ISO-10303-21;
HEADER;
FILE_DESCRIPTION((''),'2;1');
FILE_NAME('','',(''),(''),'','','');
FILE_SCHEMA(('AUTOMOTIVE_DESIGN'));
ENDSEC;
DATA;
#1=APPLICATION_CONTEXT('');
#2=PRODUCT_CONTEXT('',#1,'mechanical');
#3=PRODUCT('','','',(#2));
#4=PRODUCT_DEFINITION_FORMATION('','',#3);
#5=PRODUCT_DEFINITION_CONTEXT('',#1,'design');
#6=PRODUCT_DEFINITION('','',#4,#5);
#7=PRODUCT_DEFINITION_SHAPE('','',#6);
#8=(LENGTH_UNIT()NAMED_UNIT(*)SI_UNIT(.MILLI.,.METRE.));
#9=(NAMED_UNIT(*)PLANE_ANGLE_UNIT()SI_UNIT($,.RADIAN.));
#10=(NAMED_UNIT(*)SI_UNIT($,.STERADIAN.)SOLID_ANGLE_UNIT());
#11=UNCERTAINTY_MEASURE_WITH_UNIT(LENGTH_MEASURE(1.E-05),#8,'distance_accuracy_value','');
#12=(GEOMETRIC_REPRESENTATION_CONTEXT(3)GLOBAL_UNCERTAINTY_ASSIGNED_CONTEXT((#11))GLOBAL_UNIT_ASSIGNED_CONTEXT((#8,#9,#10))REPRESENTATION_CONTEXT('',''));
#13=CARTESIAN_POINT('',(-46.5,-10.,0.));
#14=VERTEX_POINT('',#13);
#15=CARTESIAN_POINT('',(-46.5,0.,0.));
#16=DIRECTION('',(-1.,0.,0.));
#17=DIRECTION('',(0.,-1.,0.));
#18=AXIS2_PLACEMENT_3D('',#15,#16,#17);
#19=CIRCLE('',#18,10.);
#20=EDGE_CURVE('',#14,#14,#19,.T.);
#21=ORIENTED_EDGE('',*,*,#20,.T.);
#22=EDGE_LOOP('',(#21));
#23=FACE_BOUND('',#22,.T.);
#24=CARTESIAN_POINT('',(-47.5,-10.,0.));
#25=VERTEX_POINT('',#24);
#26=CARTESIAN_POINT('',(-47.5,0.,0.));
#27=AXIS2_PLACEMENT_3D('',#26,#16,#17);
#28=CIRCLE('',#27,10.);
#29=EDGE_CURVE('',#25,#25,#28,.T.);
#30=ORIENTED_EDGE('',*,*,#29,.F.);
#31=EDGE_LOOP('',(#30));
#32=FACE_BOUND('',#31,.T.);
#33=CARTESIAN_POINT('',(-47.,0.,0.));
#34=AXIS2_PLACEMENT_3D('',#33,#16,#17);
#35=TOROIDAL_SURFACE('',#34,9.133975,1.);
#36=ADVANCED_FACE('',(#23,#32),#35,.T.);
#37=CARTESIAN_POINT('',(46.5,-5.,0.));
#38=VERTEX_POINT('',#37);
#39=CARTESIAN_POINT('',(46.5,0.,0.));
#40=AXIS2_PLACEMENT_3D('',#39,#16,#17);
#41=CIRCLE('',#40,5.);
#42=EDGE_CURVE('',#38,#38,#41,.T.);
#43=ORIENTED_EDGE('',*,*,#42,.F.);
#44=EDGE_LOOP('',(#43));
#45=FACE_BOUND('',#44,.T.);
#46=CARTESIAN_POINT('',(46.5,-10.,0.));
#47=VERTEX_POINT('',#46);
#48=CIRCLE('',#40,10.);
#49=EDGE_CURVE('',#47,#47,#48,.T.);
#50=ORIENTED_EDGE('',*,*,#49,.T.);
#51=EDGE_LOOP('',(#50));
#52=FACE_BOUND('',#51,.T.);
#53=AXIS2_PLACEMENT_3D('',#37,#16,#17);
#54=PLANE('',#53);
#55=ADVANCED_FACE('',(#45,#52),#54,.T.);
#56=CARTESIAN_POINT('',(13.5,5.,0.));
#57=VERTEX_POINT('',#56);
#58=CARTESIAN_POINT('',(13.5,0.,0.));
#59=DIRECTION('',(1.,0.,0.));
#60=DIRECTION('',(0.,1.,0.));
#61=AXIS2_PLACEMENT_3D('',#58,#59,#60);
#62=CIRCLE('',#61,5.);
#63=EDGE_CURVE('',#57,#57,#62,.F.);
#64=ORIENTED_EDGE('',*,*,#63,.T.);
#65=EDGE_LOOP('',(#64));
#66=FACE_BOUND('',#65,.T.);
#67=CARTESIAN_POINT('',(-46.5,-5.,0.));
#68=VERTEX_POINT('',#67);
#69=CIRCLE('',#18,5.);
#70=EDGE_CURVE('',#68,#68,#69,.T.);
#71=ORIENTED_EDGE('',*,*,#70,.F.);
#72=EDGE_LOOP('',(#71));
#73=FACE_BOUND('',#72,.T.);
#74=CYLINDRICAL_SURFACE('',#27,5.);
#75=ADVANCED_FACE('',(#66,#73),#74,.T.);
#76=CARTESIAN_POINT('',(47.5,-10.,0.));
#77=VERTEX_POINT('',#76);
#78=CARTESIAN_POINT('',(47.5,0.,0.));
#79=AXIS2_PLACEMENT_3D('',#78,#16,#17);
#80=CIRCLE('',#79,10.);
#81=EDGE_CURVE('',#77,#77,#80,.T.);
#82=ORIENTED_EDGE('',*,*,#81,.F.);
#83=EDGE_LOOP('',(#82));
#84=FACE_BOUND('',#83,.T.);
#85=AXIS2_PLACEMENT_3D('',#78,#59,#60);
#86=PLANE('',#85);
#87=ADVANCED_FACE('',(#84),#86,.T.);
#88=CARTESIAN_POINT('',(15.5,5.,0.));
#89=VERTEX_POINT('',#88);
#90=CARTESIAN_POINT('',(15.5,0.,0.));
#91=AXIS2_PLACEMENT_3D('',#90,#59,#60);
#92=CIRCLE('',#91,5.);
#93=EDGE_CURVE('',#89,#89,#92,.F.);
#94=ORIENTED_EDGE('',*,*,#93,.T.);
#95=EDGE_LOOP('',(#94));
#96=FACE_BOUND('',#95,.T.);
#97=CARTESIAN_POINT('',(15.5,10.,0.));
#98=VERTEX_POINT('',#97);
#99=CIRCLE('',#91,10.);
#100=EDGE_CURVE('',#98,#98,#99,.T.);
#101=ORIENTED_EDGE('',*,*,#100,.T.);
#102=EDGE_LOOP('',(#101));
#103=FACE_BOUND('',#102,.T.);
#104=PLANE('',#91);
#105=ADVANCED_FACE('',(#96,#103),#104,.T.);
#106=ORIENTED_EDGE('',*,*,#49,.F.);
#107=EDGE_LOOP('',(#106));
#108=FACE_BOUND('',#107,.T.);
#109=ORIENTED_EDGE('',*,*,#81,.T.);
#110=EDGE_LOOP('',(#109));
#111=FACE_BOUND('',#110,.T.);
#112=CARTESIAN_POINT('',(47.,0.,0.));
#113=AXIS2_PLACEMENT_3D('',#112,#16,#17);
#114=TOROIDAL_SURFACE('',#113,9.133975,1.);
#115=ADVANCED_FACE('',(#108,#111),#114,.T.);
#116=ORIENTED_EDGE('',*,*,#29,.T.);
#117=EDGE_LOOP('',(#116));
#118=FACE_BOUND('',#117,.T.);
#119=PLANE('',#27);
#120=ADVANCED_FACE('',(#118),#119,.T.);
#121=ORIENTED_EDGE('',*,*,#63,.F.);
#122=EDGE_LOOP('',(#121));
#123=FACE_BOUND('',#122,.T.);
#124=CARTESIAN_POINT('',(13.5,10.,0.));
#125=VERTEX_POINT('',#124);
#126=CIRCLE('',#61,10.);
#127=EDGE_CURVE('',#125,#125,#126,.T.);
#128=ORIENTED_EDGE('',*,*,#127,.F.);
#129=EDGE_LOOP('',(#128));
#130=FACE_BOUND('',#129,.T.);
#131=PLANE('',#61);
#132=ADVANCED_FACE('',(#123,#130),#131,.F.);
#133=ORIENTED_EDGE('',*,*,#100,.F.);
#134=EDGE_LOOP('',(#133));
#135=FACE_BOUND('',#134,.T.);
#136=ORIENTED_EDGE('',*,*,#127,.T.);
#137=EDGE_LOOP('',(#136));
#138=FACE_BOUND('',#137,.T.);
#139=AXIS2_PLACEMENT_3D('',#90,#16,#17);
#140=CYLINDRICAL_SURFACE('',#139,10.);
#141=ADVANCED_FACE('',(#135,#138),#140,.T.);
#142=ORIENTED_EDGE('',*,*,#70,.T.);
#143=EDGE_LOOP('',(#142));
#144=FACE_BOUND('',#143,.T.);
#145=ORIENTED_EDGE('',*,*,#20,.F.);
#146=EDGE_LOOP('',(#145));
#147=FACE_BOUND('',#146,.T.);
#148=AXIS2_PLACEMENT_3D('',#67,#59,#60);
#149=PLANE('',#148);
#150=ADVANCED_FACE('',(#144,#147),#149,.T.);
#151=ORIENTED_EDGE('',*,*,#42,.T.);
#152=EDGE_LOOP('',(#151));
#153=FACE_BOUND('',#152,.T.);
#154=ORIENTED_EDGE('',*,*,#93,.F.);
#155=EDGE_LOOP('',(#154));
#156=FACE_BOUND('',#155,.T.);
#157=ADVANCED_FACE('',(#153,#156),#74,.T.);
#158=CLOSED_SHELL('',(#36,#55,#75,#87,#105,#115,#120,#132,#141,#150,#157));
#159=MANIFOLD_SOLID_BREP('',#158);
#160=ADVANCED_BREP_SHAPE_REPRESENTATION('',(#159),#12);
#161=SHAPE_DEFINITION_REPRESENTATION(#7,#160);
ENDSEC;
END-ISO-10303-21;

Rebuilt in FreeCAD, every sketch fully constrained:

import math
import FreeCAD as App
import Part
import Sketcher
from FreeCAD import Vector

doc = App.newDocument("Part")
body = doc.addObject("PartDesign::Body", "Body")

sketch1 = body.newObject("Sketcher::SketchObject", "Sketch")
sketch1.AttachmentSupport = (doc.getObject("XY_Plane"), [""])
sketch1.MapMode = "FlatFace"
sketch1.addGeometry(Part.LineSegment(Vector(47.5, 0, 0), Vector(-47.5, 0, 0)), False)
sketch1.addGeometry(Part.LineSegment(Vector(-47.5, 0, 0), Vector(-47.5, -10, 0)), False)
sketch1.addGeometry(Part.ArcOfCircle(Part.Circle(Vector(-47, -9.133975, 0), Vector(0, 0, 1), 1), math.radians(-120), math.radians(-60)), False)
sketch1.addGeometry(Part.LineSegment(Vector(-46.5, -10, 0), Vector(-46.5, -5, 0)), False)
sketch1.addGeometry(Part.LineSegment(Vector(-46.5, -5, 0), Vector(46.5, -5, 0)), False)
sketch1.addGeometry(Part.LineSegment(Vector(46.5, -5, 0), Vector(46.5, -10, 0)), False)
sketch1.addGeometry(Part.ArcOfCircle(Part.Circle(Vector(47, -9.133975, 0), Vector(0, 0, 1), 1), math.radians(-120), math.radians(-60)), False)
sketch1.addGeometry(Part.LineSegment(Vector(47.5, -10, 0), Vector(47.5, 0, 0)), False)
sketch1.addConstraint(Sketcher.Constraint("Coincident", 0, 2, 1, 1))
sketch1.addConstraint(Sketcher.Constraint("Coincident", 1, 2, 2, 1))
sketch1.addConstraint(Sketcher.Constraint("Coincident", 2, 2, 3, 1))
sketch1.addConstraint(Sketcher.Constraint("Coincident", 3, 2, 4, 1))
sketch1.addConstraint(Sketcher.Constraint("Coincident", 4, 2, 5, 1))
sketch1.addConstraint(Sketcher.Constraint("Coincident", 5, 2, 6, 1))
sketch1.addConstraint(Sketcher.Constraint("Coincident", 6, 2, 7, 1))
sketch1.addConstraint(Sketcher.Constraint("Coincident", 7, 2, 0, 1))
sketch1.addConstraint(Sketcher.Constraint("Horizontal", 0))
sketch1.addConstraint(Sketcher.Constraint("Vertical", 1))
sketch1.addConstraint(Sketcher.Constraint("Vertical", 3))
sketch1.addConstraint(Sketcher.Constraint("Horizontal", 4))
sketch1.addConstraint(Sketcher.Constraint("Vertical", 5))
sketch1.addConstraint(Sketcher.Constraint("Vertical", 7))
sketch1.addConstraint(Sketcher.Constraint("Equal", 2, 6))
sketch1.addConstraint(Sketcher.Constraint("Symmetric", 0, 2, 7, 2, -1, 1))
sketch1.addConstraint(Sketcher.Constraint("Symmetric", 2, 3, 6, 3, -2))
sketch1.addConstraint(Sketcher.Constraint("Horizontal", 1, 2, 2, 2))
sketch1.addConstraint(Sketcher.Constraint("Horizontal", 2, 2, 5, 2))
sketch1.addConstraint(Sketcher.Constraint("Radius", 2, 1.0))
sketch1.addConstraint(Sketcher.Constraint("DistanceX", 0, 2, 0, 1, 95.0))
sketch1.addConstraint(Sketcher.Constraint("DistanceX", 4, 1, 4, 2, 93.0))
sketch1.addConstraint(Sketcher.Constraint("DistanceY", 1, 2, 1, 1, 10.0))
sketch1.addConstraint(Sketcher.Constraint("DistanceY", 3, 1, 3, 2, 5.0))
revolution = body.newObject("PartDesign::Revolution", "Revolution")
revolution.Profile = sketch1
revolution.ReferenceAxis = (sketch1, ["H_Axis"])
revolution.Angle = 360

sketch2 = body.newObject("Sketcher::SketchObject", "Sketch001")
sketch2.AttachmentSupport = (doc.getObject("YZ_Plane"), [""])
sketch2.MapMode = "FlatFace"
sketch2.AttachmentOffset = App.Placement(Vector(0, 0, 13.5), App.Rotation())
sketch2.addGeometry(Part.Circle(Vector(0, 0, 0), Vector(0, 0, 1), 10), False)
sketch2.addConstraint(Sketcher.Constraint("Coincident", 0, 3, -1, 1))
sketch2.addConstraint(Sketcher.Constraint("Diameter", 0, 20.0))
pad1 = body.newObject("PartDesign::Pad", "Pad")
pad1.Profile = sketch2
pad1.Length = 2

doc.recompute()
